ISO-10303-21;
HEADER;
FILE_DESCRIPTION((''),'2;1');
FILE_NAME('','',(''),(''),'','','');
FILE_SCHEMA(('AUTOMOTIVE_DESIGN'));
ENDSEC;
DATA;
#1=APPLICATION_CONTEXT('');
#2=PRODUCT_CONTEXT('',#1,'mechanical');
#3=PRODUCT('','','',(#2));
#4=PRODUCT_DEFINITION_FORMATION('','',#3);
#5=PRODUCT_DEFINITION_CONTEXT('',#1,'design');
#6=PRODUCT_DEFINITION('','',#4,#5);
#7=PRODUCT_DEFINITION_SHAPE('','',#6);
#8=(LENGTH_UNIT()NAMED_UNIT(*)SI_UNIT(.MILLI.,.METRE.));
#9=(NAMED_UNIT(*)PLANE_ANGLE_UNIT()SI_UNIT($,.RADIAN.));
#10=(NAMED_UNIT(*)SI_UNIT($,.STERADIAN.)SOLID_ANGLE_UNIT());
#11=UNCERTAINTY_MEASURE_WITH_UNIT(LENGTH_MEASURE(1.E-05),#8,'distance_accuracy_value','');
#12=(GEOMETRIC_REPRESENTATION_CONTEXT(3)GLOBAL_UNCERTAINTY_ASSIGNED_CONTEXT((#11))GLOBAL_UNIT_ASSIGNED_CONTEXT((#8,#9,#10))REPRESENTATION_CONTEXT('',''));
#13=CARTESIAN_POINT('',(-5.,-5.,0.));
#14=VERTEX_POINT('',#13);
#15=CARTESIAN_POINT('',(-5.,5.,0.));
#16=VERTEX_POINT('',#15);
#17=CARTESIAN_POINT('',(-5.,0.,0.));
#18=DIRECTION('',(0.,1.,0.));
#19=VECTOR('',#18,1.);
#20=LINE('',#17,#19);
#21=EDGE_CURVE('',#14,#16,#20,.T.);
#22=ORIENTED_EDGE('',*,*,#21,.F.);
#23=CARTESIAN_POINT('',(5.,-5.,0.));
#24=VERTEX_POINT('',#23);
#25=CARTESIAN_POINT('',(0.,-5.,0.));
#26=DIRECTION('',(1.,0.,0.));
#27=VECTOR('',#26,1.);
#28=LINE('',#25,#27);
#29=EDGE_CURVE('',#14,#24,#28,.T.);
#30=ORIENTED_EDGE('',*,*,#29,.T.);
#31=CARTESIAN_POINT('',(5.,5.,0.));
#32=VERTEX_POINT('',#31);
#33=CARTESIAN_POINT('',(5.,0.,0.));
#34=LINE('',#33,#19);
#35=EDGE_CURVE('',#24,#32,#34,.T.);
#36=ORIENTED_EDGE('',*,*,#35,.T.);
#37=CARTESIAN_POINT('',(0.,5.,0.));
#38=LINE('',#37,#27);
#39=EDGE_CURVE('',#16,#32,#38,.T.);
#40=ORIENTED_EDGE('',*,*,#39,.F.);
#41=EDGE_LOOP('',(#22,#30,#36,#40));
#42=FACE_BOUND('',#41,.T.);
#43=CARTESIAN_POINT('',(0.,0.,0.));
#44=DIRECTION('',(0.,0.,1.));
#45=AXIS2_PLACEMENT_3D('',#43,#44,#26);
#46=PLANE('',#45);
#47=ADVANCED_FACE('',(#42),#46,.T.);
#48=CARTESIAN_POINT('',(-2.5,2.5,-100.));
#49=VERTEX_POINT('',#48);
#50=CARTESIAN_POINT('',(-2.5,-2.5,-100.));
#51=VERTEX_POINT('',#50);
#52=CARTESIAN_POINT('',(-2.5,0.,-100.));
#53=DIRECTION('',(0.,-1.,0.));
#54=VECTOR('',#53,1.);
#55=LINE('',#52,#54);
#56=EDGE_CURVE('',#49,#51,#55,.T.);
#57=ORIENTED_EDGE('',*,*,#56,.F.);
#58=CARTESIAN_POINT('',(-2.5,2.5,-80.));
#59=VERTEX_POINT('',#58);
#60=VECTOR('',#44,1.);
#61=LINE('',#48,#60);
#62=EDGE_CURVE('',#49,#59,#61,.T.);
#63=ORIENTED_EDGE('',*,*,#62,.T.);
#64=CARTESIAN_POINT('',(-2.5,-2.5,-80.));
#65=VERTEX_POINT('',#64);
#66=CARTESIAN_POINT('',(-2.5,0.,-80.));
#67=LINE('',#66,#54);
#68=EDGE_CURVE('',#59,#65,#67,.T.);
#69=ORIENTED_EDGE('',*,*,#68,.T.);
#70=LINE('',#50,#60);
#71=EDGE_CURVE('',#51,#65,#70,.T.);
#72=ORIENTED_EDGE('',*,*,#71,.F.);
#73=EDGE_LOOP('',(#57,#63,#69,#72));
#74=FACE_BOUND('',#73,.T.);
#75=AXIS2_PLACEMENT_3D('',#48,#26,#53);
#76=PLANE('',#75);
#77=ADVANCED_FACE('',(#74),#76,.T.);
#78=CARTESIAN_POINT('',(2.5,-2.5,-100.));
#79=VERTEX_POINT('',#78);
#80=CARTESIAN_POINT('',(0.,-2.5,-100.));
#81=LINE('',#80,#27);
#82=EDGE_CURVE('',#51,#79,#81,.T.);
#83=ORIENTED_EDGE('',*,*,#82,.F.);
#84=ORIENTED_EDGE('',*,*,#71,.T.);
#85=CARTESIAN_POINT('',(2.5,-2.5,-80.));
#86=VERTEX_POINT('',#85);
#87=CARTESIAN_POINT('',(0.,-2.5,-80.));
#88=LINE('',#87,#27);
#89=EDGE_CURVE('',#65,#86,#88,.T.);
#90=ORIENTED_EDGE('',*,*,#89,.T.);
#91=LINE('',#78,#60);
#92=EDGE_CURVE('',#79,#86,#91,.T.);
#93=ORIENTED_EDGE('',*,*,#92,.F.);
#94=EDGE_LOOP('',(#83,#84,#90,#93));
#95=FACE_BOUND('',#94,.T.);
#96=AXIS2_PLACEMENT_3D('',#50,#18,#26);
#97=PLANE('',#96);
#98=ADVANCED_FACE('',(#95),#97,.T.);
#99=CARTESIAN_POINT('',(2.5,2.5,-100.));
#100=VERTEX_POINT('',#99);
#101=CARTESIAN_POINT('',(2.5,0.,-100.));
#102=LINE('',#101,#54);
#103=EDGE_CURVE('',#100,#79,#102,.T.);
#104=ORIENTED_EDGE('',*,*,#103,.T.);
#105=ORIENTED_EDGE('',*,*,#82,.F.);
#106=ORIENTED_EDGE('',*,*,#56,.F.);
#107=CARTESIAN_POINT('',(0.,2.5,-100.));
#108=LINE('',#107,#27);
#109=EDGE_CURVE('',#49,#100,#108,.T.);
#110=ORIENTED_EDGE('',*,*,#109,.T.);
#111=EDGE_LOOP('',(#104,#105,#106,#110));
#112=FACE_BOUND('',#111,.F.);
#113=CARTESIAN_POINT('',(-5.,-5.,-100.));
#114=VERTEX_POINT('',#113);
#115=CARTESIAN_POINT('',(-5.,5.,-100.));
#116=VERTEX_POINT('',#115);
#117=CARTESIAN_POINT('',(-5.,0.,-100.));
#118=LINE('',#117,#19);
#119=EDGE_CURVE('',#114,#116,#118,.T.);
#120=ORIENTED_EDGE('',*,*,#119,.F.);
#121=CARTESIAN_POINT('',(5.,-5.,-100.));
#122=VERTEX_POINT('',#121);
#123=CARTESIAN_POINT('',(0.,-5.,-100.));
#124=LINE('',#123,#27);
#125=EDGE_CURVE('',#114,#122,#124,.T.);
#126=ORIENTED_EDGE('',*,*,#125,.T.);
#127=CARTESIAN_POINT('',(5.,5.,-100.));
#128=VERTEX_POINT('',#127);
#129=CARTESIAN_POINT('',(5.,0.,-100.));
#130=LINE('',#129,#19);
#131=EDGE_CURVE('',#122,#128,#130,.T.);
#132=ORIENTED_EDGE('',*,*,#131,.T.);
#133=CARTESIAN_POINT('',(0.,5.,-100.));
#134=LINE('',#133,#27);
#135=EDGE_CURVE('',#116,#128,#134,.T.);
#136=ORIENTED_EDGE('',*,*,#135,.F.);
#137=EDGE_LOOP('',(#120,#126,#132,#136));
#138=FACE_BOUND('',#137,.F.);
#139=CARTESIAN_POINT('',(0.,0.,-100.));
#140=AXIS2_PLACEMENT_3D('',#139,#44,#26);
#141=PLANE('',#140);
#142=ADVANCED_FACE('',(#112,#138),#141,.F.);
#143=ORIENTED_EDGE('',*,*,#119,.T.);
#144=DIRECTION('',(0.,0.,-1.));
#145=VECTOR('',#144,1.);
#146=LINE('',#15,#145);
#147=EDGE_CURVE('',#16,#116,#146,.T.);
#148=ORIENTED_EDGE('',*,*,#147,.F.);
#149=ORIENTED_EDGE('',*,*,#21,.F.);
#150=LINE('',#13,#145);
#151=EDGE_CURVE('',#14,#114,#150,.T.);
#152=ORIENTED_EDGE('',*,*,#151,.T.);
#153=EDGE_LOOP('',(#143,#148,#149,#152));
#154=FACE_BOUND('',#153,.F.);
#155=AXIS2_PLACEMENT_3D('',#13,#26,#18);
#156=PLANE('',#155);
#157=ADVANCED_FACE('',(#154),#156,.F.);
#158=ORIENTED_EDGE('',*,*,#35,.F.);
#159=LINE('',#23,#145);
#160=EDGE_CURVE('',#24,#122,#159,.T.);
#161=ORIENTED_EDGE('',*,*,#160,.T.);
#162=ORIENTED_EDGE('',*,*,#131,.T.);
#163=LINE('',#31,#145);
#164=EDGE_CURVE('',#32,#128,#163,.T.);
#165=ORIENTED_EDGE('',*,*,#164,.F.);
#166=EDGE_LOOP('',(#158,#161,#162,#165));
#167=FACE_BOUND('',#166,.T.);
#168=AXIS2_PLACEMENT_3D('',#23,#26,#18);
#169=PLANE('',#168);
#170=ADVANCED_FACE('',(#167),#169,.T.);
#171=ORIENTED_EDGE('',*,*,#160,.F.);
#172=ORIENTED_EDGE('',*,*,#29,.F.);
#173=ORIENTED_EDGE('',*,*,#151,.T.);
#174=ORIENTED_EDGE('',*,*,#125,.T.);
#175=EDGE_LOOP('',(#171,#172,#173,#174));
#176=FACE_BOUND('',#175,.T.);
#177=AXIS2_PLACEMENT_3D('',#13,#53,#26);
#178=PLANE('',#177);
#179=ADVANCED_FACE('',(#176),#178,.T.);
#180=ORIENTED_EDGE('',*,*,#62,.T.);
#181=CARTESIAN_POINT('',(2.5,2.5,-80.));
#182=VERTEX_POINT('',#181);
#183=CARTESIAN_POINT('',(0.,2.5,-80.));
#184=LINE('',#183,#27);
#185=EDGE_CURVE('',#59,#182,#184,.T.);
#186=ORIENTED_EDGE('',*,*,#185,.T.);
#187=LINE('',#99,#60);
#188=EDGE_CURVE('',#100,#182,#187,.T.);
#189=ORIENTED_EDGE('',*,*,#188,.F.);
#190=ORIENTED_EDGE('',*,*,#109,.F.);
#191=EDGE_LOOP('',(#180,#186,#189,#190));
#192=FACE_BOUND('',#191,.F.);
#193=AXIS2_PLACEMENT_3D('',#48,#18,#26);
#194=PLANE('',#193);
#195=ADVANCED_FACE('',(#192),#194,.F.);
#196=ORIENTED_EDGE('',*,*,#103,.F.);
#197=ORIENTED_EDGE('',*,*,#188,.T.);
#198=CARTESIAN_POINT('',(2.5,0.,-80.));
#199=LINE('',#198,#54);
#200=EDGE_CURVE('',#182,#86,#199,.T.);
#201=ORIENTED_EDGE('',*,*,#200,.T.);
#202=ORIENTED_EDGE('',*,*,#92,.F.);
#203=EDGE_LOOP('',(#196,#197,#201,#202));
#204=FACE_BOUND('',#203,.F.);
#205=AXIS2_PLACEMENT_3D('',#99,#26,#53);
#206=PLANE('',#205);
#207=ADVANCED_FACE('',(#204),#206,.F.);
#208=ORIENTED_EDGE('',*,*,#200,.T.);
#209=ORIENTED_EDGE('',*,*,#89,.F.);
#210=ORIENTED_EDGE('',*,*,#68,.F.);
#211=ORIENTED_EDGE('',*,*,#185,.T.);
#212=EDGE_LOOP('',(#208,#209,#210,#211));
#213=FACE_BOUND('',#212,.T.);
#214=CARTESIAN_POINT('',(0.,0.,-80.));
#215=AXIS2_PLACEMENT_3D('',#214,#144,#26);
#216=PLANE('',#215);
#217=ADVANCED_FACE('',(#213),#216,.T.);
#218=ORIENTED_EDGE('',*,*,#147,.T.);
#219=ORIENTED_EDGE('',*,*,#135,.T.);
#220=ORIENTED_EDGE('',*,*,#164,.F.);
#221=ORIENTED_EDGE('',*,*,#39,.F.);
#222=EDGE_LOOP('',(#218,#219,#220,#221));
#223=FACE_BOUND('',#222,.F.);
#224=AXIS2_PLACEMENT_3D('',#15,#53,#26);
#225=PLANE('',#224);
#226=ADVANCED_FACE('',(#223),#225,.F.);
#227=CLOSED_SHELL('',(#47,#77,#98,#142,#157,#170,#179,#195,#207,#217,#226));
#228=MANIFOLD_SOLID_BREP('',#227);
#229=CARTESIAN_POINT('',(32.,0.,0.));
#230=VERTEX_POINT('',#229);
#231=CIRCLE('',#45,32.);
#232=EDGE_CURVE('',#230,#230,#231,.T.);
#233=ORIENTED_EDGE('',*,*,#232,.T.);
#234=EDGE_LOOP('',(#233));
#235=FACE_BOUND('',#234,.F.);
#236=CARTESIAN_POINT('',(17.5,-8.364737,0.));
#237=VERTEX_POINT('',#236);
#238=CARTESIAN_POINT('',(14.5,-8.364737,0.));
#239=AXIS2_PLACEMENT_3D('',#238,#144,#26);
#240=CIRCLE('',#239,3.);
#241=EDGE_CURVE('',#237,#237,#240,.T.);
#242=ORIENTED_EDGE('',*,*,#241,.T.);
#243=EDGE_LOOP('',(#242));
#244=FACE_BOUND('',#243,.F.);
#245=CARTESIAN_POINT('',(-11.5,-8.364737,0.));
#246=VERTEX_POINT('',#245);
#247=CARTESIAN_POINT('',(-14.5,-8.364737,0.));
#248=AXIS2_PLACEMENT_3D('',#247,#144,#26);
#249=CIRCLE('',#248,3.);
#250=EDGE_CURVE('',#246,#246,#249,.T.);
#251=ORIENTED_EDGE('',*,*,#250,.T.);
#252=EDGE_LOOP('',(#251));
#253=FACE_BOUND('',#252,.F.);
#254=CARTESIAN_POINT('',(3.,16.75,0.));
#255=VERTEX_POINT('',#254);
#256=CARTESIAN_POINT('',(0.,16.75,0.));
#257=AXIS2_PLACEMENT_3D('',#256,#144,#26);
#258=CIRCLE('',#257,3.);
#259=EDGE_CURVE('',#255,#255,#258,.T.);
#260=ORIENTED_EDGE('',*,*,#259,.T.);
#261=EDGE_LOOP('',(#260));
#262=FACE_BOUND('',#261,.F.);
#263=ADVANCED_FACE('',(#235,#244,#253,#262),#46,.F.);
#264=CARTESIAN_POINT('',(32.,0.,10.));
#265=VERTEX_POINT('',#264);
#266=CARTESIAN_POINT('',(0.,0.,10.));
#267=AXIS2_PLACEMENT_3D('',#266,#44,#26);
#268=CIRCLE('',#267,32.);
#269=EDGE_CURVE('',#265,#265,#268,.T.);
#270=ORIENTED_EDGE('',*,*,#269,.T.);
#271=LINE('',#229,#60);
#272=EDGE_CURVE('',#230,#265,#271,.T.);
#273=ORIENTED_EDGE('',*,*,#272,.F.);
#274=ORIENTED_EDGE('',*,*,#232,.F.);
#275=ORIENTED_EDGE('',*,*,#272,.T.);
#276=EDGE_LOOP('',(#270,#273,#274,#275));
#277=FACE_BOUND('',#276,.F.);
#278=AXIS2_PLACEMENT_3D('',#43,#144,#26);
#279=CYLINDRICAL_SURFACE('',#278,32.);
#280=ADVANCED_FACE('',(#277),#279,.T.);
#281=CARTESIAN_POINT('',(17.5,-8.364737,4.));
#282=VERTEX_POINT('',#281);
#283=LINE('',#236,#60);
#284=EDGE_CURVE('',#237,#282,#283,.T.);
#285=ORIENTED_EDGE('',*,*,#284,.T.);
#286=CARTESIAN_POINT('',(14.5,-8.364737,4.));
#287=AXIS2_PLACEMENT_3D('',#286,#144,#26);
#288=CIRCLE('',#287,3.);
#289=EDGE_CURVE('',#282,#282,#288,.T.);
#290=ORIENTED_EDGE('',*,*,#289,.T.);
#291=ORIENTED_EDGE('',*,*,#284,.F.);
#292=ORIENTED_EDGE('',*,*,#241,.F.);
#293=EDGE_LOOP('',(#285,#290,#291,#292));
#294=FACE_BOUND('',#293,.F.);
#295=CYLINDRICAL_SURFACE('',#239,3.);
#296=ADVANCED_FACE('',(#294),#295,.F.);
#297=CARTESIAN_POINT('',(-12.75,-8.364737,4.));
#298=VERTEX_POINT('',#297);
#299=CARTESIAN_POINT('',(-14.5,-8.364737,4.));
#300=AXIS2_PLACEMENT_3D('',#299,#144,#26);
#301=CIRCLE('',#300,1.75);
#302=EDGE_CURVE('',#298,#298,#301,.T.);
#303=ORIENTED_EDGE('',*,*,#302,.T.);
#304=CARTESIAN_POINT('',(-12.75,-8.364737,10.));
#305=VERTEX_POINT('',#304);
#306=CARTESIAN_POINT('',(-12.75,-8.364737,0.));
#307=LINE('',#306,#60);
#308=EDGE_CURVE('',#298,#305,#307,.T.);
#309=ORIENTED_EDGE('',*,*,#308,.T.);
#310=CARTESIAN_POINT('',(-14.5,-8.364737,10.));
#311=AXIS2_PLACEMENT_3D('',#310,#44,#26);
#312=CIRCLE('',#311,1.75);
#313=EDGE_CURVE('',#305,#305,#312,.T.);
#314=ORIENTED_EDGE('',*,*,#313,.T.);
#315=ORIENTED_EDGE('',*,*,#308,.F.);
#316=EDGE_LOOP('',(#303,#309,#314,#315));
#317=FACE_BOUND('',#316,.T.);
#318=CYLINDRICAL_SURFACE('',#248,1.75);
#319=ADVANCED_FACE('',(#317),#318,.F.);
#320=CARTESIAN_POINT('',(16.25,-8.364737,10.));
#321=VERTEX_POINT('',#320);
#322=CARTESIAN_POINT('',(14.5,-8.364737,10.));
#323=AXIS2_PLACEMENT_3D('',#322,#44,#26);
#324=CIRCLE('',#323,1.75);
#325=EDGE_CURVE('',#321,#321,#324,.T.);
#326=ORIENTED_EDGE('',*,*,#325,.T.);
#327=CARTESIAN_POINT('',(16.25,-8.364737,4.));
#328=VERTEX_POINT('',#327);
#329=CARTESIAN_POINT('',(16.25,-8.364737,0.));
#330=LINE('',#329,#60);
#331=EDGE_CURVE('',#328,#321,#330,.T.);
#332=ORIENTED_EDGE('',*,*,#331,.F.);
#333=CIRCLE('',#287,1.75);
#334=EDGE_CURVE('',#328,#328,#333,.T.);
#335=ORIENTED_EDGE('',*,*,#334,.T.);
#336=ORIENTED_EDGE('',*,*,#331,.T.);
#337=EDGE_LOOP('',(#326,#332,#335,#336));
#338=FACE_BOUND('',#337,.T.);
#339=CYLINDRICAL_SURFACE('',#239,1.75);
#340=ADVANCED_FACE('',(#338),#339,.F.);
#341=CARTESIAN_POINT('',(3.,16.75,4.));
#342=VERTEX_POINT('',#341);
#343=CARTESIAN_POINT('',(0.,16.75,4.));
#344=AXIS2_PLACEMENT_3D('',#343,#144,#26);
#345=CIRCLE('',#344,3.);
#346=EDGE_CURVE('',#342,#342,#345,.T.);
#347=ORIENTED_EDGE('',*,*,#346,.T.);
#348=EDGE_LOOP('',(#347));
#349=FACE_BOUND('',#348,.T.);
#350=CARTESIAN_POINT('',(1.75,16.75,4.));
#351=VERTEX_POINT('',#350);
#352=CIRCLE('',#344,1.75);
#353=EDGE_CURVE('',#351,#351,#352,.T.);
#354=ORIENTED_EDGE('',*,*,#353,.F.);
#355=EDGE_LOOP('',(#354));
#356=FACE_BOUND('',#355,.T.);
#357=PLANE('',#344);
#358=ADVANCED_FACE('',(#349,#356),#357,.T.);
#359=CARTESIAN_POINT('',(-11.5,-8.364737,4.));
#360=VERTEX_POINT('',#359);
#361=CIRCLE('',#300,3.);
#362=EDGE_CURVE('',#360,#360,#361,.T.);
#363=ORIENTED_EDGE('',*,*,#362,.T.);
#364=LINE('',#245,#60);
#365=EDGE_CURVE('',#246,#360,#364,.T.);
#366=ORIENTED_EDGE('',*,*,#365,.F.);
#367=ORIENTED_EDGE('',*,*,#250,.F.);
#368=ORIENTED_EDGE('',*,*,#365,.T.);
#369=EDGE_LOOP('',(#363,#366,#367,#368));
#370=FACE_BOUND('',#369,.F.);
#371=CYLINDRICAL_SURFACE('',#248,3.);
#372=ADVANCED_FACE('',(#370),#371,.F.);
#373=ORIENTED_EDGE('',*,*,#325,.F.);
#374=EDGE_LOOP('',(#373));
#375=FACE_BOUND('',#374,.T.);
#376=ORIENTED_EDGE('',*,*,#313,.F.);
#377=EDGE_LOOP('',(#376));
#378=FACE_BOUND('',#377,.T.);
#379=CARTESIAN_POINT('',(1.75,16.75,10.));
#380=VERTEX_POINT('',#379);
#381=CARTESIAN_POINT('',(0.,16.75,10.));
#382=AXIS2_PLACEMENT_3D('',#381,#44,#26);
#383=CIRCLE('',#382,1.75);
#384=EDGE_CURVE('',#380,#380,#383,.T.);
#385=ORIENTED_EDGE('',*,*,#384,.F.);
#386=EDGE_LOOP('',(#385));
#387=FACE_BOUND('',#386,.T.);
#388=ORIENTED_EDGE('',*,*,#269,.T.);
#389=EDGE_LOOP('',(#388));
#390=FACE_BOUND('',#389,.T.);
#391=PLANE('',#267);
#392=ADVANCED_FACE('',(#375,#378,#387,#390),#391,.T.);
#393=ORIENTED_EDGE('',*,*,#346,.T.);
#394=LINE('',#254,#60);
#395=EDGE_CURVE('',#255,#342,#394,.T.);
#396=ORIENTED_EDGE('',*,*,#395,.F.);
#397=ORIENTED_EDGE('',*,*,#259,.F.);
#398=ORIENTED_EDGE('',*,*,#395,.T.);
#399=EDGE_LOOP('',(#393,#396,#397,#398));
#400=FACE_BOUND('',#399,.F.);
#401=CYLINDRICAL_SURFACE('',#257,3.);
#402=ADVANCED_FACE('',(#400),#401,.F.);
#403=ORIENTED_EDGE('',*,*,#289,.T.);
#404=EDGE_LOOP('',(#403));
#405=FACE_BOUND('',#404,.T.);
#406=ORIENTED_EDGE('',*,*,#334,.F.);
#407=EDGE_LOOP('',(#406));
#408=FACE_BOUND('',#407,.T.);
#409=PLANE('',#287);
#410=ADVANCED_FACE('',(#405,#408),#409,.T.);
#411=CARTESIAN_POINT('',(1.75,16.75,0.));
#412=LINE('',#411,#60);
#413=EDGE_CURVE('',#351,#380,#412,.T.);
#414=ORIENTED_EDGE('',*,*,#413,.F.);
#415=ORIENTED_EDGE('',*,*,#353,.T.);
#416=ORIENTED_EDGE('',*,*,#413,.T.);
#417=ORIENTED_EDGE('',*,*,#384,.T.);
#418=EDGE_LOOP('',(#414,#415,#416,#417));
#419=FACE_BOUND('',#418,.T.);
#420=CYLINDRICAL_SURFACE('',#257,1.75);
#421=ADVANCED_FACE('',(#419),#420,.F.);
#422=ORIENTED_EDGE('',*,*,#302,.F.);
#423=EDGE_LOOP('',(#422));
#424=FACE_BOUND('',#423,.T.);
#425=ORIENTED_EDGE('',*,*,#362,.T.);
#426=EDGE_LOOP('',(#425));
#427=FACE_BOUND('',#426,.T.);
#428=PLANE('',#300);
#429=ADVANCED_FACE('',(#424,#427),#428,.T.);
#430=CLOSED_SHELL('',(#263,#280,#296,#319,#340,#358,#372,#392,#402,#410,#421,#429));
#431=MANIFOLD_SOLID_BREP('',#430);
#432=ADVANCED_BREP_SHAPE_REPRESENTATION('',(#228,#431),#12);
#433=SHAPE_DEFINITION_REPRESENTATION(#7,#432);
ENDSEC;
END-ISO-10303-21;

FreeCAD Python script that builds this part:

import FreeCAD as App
import Part
import Sketcher

V = App.Vector
Q = App.Units.Quantity

doc = App.newDocument("Part")
body = doc.addObject("PartDesign::Body", "Body")

# Sketch on XY plane
sketch1 = body.newObject("Sketcher::SketchObject", "Sketch")
sketch1.AttachmentSupport = (doc.getObject("XY_Plane"), [""])
sketch1.MapMode = "FlatFace"
sketch1.addGeometry(Part.Circle(V(0, 0, 0), V(0, 0, 1), 32), False)
sketch1.addGeometry(Part.Circle(V(-14.5, -8.4, 0), V(0, 0, 1), 1.8), False)
sketch1.addGeometry(Part.Circle(V(14.5, -8.4, 0), V(0, 0, 1), 1.8), False)
sketch1.addGeometry(Part.Circle(V(0, 16.8, 0), V(0, 0, 1), 1.8), False)
sketch1.addConstraint(Sketcher.Constraint("Coincident", 0, 3, -1, 1))
sketch1.addConstraint(Sketcher.Constraint("Equal", 1, 2))
sketch1.addConstraint(Sketcher.Constraint("Equal", 2, 3))
sketch1.addConstraint(Sketcher.Constraint("Symmetric", 1, 3, 2, 3, -2))
sketch1.addConstraint(Sketcher.Constraint("PointOnObject", 3, 3, -2))
sketch1.addConstraint(Sketcher.Constraint("Diameter", 0, Q("64 mm")))
sketch1.addConstraint(Sketcher.Constraint("Diameter", 1, Q("3.5 mm")))
sketch1.addConstraint(Sketcher.Constraint("DistanceX", 1, 3, 2, 3, Q("29 mm")))
sketch1.addConstraint(Sketcher.Constraint("DistanceY", -1, 1, 3, 3, Q("16.75 mm")))
sketch1.addConstraint(Sketcher.Constraint("DistanceY", 1, 3, -1, 1, Q("8.364737 mm")))
pad1 = body.newObject("PartDesign::Pad", "Pad")
pad1.Profile = sketch1
pad1.Length = 10

# Sketch on XY plane
sketch2 = body.newObject("Sketcher::SketchObject", "Sketch001")
sketch2.AttachmentSupport = (doc.getObject("XY_Plane"), [""])
sketch2.MapMode = "FlatFace"
sketch2.addGeometry(Part.Circle(V(-14.5, -8.4, 0), V(0, 0, 1), 3), False)
sketch2.addGeometry(Part.Circle(V(14.5, -8.4, 0), V(0, 0, 1), 3), False)
sketch2.addGeometry(Part.Circle(V(0, 16.8, 0), V(0, 0, 1), 3), False)
sketch2.addConstraint(Sketcher.Constraint("Equal", 0, 1))
sketch2.addConstraint(Sketcher.Constraint("Equal", 1, 2))
sketch2.addConstraint(Sketcher.Constraint("Symmetric", 0, 3, 1, 3, -2))
sketch2.addConstraint(Sketcher.Constraint("PointOnObject", 2, 3, -2))
sketch2.addConstraint(Sketcher.Constraint("Diameter", 0, Q("6 mm")))
sketch2.addConstraint(Sketcher.Constraint("DistanceX", 0, 3, 1, 3, Q("29 mm")))
sketch2.addConstraint(Sketcher.Constraint("DistanceY", -1, 1, 2, 3, Q("16.75 mm")))
sketch2.addConstraint(Sketcher.Constraint("DistanceY", 0, 3, -1, 1, Q("8.364737 mm")))
pocket1 = body.newObject("PartDesign::Pocket", "Pocket")
pocket1.Profile = sketch2
pocket1.Length = 4
pocket1.Reversed = True
body2 = doc.addObject("PartDesign::Body", "Body001")

# Sketch on XY plane
sketch3 = body2.newObject("Sketcher::SketchObject", "Sketch002")
sketch3.AttachmentSupport = (doc.getObject("XY_Plane001"), [""])
sketch3.MapMode = "FlatFace"
sketch3.addGeometry(Part.LineSegment(V(-5, 5, 0), V(-5, -5, 0)), False)
sketch3.addGeometry(Part.LineSegment(V(-5, -5, 0), V(5, -5, 0)), False)
sketch3.addGeometry(Part.LineSegment(V(5, -5, 0), V(5, 5, 0)), False)
sketch3.addGeometry(Part.LineSegment(V(5, 5, 0), V(-5, 5, 0)), False)
sketch3.addConstraint(Sketcher.Constraint("Coincident", 0, 2, 1, 1))
sketch3.addConstraint(Sketcher.Constraint("Coincident", 1, 2, 2, 1))
sketch3.addConstraint(Sketcher.Constraint("Coincident", 2, 2, 3, 1))
sketch3.addConstraint(Sketcher.Constraint("Coincident", 3, 2, 0, 1))
sketch3.addConstraint(Sketcher.Constraint("Vertical", 0))
sketch3.addConstraint(Sketcher.Constraint("Horizontal", 1))
sketch3.addConstraint(Sketcher.Constraint("Vertical", 2))
sketch3.addConstraint(Sketcher.Constraint("Horizontal", 3))
sketch3.addConstraint(Sketcher.Constraint("Symmetric", 0, 2, 2, 2, -1, 1))
sketch3.addConstraint(Sketcher.Constraint("Equal", 3, 0))
sketch3.addConstraint(Sketcher.Constraint("DistanceX", 1, 1, 1, 2, Q("10 mm")))
pad2 = body2.newObject("PartDesign::Pad", "Pad001")
pad2.Profile = sketch3
pad2.Length = 100
pad2.Reversed = True

# Sketch on XY plane
sketch4 = body2.newObject("Sketcher::SketchObject", "Sketch003")
sketch4.AttachmentSupport = (doc.getObject("XY_Plane001"), [""])
sketch4.MapMode = "FlatFace"
sketch4.AttachmentOffset = App.Placement(V(0, 0, -100), App.Rotation())
sketch4.addGeometry(Part.LineSegment(V(-2, -2, 0), V(-2, 2, 0)), False)
sketch4.addGeometry(Part.LineSegment(V(-2, 2, 0), V(2, 2, 0)), False)
sketch4.addGeometry(Part.LineSegment(V(2, 2, 0), V(2, -2, 0)), False)
sketch4.addGeometry(Part.LineSegment(V(2, -2, 0), V(-2, -2, 0)), False)
sketch4.addConstraint(Sketcher.Constraint("Coincident", 0, 2, 1, 1))
sketch4.addConstraint(Sketcher.Constraint("Coincident", 1, 2, 2, 1))
sketch4.addConstraint(Sketcher.Constraint("Coincident", 2, 2, 3, 1))
sketch4.addConstraint(Sketcher.Constraint("Coincident", 3, 2, 0, 1))
sketch4.addConstraint(Sketcher.Constraint("Vertical", 0))
sketch4.addConstraint(Sketcher.Constraint("Horizontal", 1))
sketch4.addConstraint(Sketcher.Constraint("Vertical", 2))
sketch4.addConstraint(Sketcher.Constraint("Horizontal", 3))
sketch4.addConstraint(Sketcher.Constraint("Symmetric", 0, 2, 2, 2, -1, 1))
sketch4.addConstraint(Sketcher.Constraint("Equal", 3, 0))
sketch4.addConstraint(Sketcher.Constraint("DistanceX", 1, 1, 1, 2, Q("5 mm")))
pocket2 = body2.newObject("PartDesign::Pocket", "Pocket001")
pocket2.Profile = sketch4
pocket2.Length = 20
pocket2.Reversed = True

doc.recompute()
